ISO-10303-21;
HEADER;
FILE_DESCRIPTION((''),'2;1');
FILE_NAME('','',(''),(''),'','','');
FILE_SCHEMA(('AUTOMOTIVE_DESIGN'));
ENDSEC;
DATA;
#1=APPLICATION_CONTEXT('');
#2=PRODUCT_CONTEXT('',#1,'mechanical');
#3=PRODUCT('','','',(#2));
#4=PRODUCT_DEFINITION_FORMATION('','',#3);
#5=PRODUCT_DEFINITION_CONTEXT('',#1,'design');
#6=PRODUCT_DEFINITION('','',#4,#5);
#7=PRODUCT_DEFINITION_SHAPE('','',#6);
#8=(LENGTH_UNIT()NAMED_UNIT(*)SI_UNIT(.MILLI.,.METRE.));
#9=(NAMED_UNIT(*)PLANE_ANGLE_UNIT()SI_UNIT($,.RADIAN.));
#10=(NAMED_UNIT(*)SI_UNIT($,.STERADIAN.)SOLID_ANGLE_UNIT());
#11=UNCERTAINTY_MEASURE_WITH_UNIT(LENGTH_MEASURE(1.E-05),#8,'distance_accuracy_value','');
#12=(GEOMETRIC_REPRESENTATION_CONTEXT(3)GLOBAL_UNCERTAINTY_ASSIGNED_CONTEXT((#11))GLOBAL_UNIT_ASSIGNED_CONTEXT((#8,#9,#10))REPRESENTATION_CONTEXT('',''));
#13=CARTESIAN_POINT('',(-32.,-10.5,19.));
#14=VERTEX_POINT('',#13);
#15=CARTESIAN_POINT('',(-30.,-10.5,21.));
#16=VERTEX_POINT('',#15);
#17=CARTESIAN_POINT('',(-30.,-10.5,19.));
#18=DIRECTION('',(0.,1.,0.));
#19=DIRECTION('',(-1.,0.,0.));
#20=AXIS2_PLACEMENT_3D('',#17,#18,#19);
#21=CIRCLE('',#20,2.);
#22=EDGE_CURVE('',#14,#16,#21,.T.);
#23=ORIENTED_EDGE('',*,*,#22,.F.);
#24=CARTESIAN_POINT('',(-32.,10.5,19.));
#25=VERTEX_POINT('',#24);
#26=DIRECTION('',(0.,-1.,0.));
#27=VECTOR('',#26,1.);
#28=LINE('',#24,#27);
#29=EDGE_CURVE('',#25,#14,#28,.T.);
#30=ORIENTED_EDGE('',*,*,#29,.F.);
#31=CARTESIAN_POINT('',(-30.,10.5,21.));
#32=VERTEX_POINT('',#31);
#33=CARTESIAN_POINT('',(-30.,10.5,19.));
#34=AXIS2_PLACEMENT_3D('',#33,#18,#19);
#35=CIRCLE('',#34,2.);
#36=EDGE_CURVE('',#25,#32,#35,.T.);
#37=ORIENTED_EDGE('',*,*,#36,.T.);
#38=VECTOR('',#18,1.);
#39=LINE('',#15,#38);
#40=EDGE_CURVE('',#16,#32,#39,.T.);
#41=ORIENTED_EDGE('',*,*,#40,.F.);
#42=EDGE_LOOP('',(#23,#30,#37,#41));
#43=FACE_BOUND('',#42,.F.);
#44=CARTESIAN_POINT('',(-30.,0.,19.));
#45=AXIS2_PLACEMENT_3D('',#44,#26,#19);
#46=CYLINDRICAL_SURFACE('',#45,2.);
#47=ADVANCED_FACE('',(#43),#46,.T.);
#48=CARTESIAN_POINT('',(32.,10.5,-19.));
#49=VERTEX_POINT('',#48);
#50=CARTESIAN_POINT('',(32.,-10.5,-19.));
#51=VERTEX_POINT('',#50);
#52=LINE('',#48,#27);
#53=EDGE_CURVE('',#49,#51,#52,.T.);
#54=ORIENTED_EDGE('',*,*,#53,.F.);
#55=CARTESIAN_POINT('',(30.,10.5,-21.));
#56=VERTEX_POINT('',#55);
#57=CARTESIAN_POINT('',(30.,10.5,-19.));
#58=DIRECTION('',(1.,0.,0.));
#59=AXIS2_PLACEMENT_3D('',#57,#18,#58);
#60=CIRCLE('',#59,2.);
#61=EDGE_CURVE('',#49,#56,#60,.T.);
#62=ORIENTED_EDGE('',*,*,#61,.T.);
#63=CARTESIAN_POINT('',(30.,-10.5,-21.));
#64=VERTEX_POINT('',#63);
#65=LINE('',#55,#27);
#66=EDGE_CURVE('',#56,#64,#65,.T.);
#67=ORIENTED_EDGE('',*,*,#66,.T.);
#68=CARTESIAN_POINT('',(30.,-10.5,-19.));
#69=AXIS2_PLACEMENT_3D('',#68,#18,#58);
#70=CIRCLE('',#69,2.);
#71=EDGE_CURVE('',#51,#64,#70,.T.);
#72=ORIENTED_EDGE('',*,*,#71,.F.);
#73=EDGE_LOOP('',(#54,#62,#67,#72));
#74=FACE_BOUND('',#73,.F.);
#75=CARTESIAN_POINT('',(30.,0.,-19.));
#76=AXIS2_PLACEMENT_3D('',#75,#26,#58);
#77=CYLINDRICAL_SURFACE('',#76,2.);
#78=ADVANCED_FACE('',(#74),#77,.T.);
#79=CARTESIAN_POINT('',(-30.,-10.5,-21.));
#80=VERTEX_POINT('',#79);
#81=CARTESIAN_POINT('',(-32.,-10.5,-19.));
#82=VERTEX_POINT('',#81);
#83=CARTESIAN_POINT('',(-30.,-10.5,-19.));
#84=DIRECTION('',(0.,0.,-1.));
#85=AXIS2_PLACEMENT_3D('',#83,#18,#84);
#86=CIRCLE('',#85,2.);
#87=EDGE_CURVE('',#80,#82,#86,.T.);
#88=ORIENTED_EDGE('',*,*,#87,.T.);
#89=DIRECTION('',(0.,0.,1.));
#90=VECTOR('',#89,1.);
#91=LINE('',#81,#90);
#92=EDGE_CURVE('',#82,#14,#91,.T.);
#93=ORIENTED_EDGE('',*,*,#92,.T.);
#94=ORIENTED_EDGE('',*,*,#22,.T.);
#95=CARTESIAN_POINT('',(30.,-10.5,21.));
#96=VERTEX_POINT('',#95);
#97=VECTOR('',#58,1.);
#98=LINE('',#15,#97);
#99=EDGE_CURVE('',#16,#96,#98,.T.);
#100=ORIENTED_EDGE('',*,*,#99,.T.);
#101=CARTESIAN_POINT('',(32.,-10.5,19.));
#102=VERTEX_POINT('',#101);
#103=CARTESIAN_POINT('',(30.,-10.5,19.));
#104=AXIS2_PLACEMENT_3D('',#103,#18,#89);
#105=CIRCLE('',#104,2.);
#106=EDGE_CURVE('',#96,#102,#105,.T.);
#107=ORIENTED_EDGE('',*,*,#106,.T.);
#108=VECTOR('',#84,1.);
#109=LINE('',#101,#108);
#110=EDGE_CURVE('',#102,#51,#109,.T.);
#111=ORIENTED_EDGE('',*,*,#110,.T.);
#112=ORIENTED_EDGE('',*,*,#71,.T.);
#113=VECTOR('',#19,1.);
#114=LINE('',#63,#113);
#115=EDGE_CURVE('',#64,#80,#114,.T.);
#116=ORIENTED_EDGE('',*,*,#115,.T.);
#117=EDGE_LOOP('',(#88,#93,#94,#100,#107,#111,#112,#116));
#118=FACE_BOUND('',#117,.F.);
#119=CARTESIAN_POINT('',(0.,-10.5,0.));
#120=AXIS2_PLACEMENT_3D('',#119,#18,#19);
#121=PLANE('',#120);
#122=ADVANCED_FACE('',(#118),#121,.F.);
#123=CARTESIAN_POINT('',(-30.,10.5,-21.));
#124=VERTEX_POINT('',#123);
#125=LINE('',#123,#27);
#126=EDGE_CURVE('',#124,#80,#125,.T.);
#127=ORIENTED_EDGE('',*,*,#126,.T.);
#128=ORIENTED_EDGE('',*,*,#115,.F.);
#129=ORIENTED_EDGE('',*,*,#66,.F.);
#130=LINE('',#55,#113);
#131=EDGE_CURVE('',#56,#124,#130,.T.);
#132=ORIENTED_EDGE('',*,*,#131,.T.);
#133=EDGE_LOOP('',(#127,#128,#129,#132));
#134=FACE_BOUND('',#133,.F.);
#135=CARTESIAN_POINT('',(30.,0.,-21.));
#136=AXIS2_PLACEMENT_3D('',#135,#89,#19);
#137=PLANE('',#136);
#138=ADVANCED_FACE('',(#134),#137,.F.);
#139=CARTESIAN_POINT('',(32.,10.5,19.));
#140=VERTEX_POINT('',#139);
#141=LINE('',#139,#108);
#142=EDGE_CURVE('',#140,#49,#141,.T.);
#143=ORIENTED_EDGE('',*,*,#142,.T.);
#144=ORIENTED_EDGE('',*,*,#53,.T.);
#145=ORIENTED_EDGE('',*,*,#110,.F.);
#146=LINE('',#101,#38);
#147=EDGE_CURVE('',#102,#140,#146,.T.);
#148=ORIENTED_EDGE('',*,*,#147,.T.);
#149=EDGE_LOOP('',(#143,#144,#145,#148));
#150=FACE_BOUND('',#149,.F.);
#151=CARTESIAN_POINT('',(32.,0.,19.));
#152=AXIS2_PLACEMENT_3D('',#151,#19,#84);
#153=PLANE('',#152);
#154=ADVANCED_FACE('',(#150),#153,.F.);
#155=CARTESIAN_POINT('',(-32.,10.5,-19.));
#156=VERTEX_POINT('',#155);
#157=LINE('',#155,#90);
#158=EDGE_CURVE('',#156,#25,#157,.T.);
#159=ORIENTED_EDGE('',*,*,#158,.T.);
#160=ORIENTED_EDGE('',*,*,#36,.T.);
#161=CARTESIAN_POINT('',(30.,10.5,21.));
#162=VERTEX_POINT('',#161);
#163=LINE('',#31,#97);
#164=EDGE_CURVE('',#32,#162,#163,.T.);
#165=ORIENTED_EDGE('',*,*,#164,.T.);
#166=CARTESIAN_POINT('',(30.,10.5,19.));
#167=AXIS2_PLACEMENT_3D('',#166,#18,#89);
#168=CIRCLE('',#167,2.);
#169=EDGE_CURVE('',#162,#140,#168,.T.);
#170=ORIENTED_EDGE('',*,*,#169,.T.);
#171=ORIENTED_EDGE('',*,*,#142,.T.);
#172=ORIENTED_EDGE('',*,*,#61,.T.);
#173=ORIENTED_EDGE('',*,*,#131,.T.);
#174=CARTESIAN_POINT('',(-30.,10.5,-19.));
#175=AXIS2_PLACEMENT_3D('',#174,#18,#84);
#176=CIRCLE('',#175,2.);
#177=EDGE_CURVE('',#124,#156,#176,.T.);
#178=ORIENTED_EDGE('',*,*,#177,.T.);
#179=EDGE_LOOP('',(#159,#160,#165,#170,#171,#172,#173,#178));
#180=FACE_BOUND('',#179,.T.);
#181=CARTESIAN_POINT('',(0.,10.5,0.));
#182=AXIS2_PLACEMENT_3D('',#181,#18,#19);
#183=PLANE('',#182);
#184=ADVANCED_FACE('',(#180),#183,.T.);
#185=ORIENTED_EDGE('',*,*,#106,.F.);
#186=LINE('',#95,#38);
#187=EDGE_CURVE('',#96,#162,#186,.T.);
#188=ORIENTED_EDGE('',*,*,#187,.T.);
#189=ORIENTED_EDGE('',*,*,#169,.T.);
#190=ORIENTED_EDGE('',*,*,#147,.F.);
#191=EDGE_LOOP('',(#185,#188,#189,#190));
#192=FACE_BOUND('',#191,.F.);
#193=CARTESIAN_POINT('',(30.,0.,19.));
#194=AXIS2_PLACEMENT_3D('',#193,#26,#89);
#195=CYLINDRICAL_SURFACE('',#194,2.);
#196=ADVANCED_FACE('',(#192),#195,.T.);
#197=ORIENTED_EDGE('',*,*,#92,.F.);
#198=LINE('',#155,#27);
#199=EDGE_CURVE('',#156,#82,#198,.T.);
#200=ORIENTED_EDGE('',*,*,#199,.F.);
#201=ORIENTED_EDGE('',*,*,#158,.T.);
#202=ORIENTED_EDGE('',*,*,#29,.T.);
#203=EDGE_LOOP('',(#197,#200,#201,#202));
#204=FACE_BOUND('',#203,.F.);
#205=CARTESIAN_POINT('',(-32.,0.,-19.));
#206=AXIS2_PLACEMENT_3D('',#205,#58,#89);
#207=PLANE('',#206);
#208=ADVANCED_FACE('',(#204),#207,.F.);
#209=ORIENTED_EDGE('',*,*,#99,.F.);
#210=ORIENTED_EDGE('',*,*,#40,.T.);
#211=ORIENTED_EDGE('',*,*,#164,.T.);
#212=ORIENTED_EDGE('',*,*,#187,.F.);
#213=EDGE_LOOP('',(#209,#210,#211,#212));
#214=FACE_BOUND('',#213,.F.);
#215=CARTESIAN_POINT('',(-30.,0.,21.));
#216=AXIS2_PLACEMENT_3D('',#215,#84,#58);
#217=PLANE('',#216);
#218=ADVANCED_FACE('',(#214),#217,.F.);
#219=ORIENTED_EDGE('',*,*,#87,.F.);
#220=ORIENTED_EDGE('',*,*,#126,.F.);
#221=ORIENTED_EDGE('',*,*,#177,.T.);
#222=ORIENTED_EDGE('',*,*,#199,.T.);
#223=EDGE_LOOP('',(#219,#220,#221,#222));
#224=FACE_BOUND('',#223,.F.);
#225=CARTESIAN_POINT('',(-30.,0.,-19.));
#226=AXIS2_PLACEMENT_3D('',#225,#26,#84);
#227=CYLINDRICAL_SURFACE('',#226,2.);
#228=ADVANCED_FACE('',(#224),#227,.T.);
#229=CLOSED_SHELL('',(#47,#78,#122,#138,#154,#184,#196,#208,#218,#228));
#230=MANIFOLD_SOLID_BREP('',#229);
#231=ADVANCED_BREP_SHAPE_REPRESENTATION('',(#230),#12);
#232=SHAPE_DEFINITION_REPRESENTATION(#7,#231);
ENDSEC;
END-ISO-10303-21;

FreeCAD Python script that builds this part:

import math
import FreeCAD as App
import Part
import Sketcher

V = App.Vector
Q = App.Units.Quantity

doc = App.newDocument("Part")
body = doc.addObject("PartDesign::Body", "Body")

# Sketch on XZ plane
sketch1 = body.newObject("Sketcher::SketchObject", "Sketch")
sketch1.AttachmentSupport = (doc.getObject("XZ_Plane"), [""])
sketch1.MapMode = "FlatFace"
sketch1.addGeometry([
    Part.ArcOfCircle(Part.Circle(V(-30, 19, 0), V(0, 0, 1), 2), math.radians(90), math.radians(180)),  # 0
    Part.LineSegment(V(-30, 21, 0), V(30, 21, 0)),  # 1
    Part.ArcOfCircle(Part.Circle(V(30, 19, 0), V(0, 0, 1), 2), math.radians(0), math.radians(90)),  # 2
    Part.LineSegment(V(32, 19, 0), V(32, -19, 0)),  # 3
    Part.ArcOfCircle(Part.Circle(V(30, -19, 0), V(0, 0, 1), 2), math.radians(-90), math.radians(0)),  # 4
    Part.LineSegment(V(30, -21, 0), V(-30, -21, 0)),  # 5
    Part.ArcOfCircle(Part.Circle(V(-30, -19, 0), V(0, 0, 1), 2), math.radians(180), math.radians(270)),  # 6
    Part.LineSegment(V(-32, -19, 0), V(-32, 19, 0)),  # 7
], False)
sketch1.addConstraint([
    Sketcher.Constraint("Tangent", 0, 1, 1, 1),
    Sketcher.Constraint("Tangent", 1, 2, 2, 2),
    Sketcher.Constraint("Tangent", 2, 1, 3, 1),
    Sketcher.Constraint("Tangent", 3, 2, 4, 2),
    Sketcher.Constraint("Tangent", 4, 1, 5, 1),
    Sketcher.Constraint("Tangent", 5, 2, 6, 2),
    Sketcher.Constraint("Tangent", 6, 1, 7, 1),
    Sketcher.Constraint("Tangent", 7, 2, 0, 2),
    Sketcher.Constraint("Horizontal", 1),
    Sketcher.Constraint("Vertical", 3),
    Sketcher.Constraint("Horizontal", 5),
    Sketcher.Constraint("Vertical", 7),
    Sketcher.Constraint("Equal", 0, 2),
    Sketcher.Constraint("Equal", 2, 4),
    Sketcher.Constraint("Equal", 4, 6),
    Sketcher.Constraint("Symmetric", 0, 3, 4, 3, -1, 1),
    Sketcher.Constraint("Radius", 0, Q("2 mm")),
    Sketcher.Constraint("DistanceY", 4, 1, 1, 2, Q("42 mm")),
    Sketcher.Constraint("DistanceX", 1, 1, 1, 2, Q("60 mm")),
])
pad1 = body.newObject("PartDesign::Pad", "Pad")
pad1.Profile = sketch1
pad1.Length = 21
pad1.Midplane = True

doc.recompute()
